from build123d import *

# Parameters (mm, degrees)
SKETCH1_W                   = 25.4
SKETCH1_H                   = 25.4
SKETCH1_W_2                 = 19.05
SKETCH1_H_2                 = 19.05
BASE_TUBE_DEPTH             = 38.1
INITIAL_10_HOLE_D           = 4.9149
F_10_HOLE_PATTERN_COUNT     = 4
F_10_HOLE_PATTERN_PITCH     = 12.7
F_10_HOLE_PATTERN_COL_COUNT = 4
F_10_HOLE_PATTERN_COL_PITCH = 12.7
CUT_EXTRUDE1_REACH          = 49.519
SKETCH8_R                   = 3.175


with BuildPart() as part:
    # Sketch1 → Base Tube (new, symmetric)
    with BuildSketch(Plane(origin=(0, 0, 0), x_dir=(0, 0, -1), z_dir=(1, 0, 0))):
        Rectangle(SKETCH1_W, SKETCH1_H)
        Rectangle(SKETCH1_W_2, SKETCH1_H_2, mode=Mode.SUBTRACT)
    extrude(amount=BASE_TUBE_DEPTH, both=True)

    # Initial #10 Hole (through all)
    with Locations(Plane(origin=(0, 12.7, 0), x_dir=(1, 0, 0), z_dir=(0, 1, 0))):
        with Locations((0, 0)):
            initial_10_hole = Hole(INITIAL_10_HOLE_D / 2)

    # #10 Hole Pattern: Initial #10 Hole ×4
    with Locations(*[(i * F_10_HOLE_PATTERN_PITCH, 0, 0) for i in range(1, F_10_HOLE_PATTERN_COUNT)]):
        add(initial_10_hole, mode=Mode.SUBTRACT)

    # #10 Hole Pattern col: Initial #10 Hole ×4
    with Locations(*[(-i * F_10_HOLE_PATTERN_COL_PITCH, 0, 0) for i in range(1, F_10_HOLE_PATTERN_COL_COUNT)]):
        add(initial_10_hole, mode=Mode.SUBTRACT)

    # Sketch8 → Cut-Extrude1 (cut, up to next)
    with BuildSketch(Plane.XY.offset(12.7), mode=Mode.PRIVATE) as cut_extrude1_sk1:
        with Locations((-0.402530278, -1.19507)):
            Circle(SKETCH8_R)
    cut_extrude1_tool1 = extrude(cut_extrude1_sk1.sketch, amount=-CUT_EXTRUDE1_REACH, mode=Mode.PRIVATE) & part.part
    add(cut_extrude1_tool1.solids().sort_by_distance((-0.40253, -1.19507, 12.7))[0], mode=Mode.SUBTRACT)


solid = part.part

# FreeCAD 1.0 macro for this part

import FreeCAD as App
import Part
import Sketcher
from FreeCAD import Vector
Q = App.Units.Quantity


def add_polygon(sketch, points):
    """Adds a closed chain of lines whose ends are joined by coincident constraints."""
    first, n = sketch.GeometryCount, len(points)
    for a, b in zip(points, points[1:] + points[:1]):
        sketch.addGeometry(Part.LineSegment(App.Vector(*a, 0), App.Vector(*b, 0)), False)
    for i in range(n):
        sketch.addConstraint(Sketcher.Constraint("Coincident", first + i, 2, first + (i + 1) % n, 1))

doc = App.newDocument("Part")
params = doc.addObject("Spreadsheet::Sheet", "Params")
for row, (alias, value) in enumerate([
    ("sketch1_width", "1 in"),
    ("sketch1_width2", "0.75 in"),
    ("pad1_length", "3 in"),
    ("hole_diameter", "0.1935 in"),
    ("linearpattern_pitch", "0.5 in"),
    ("linearpattern2_pitch", "0.5 in"),
    ("sketch3_diameter", "0.25 in"),
], start=1):
    params.set(f"A{row}", alias)
    params.set(f"B{row}", "=" + value)
    params.setAlias(f"B{row}", alias)

body = doc.addObject("PartDesign::Body", "Body")

sketch1 = body.newObject("Sketcher::SketchObject", "Sketch")
sketch1.AttachmentSupport = (doc.getObject("YZ_Plane"), [""])
sketch1.MapMode = "FlatFace"
add_polygon(sketch1, [(12.7, 12.7), (-12.7, 12.7), (-12.7, -12.7), (12.7, -12.7)])
add_polygon(sketch1, [(-9.525, -9.525), (-9.525, 9.525), (9.525, 9.525), (9.525, -9.525)])
sketch1.addConstraint([
    Sketcher.Constraint("Horizontal", 0),
    Sketcher.Constraint("Vertical", 1),
    Sketcher.Constraint("Horizontal", 2),
    Sketcher.Constraint("Vertical", 3),
    Sketcher.Constraint("Vertical", 4),
    Sketcher.Constraint("Horizontal", 5),
    Sketcher.Constraint("Vertical", 6),
    Sketcher.Constraint("Horizontal", 7),
    Sketcher.Constraint("Symmetric", 0, 2, 2, 2, -1, 1),
    Sketcher.Constraint("Symmetric", 4, 2, 6, 2, -1, 1),
    Sketcher.Constraint("Equal", 2, 1),
    Sketcher.Constraint("Equal", 7, 4),
    Sketcher.Constraint("DistanceX", 0, 2, 0, 1, Q("1 in")),
    Sketcher.Constraint("DistanceX", 5, 1, 5, 2, Q("0.75 in")),
])
sketch1.setExpression("Constraints[20]", "Params.sketch1_width")
sketch1.setExpression("Constraints[21]", "Params.sketch1_width2")
pad1 = body.newObject("PartDesign::Pad", "Pad")
pad1.Profile = sketch1
pad1.setExpression("Length", "Params.pad1_length")
pad1.Midplane = True

sketch2 = body.newObject("Sketcher::SketchObject", "Sketch001")
sketch2.AttachmentSupport = (doc.getObject("XZ_Plane"), [""])
sketch2.MapMode = "FlatFace"
sketch2.AttachmentOffset = App.Placement(Vector(0, 0, -0.5 * 25.4), App.Rotation())
sketch2.addGeometry(Part.Circle(Vector(0, 0, 0), Vector(0, 0, 1), 2.45745), False)
sketch2.addConstraint([
    Sketcher.Constraint("Coincident", 0, 3, -1, 1),
    Sketcher.Constraint("Diameter", 0, Q("0.1935 in")),
])
doc.recompute()
hole = body.newObject("PartDesign::Hole", "Hole")
hole.Profile = sketch2
hole.ThreadType = "None"
hole.setExpression("Diameter", "Params.hole_diameter")
hole.DepthType = "ThroughAll"
hole.Reversed = True
doc.recompute()

linearpattern = body.newObject("PartDesign::LinearPattern", "LinearPattern")
linearpattern.Originals = [hole]
linearpattern.Direction = (doc.getObject("X_Axis"), [""])
linearpattern.Mode = "offset"
linearpattern.setExpression("Offset", "Params.linearpattern_pitch")
linearpattern.Occurrences = 4
body.Tip = linearpattern
doc.recompute()

linearpattern2 = body.newObject("PartDesign::LinearPattern", "LinearPattern001")
linearpattern2.Originals = [hole]
linearpattern2.Direction = (doc.getObject("X_Axis"), [""])
linearpattern2.Mode = "offset"
linearpattern2.setExpression("Offset", "Params.linearpattern2_pitch")
linearpattern2.Occurrences = 4
linearpattern2.Reversed = True
body.Tip = linearpattern2

sketch3 = body.newObject("Sketcher::SketchObject", "Sketch002")
sketch3.AttachmentSupport = (doc.getObject("XY_Plane"), [""])
sketch3.MapMode = "FlatFace"
sketch3.AttachmentOffset = App.Placement(Vector(0, 0, 0.5 * 25.4), App.Rotation())
sketch3.addGeometry(Part.Circle(Vector(-0.40253, -1.19507, 0), Vector(0, 0, 1), 3.175), False)
sketch3.addConstraint([
    Sketcher.Constraint("Diameter", 0, Q("0.25 in")),
    Sketcher.Constraint("DistanceX", 0, 3, -1, 1, Q("0.40253 mm")),
    Sketcher.Constraint("DistanceY", 0, 3, -1, 1, Q("1.19507 mm")),
])
sketch3.setExpression("Constraints[0]", "Params.sketch3_diameter")
pocket1 = body.newObject("PartDesign::Pocket", "Pocket")
pocket1.Profile = sketch3
pocket1.Type = "UpToFirst"

doc.recompute()
